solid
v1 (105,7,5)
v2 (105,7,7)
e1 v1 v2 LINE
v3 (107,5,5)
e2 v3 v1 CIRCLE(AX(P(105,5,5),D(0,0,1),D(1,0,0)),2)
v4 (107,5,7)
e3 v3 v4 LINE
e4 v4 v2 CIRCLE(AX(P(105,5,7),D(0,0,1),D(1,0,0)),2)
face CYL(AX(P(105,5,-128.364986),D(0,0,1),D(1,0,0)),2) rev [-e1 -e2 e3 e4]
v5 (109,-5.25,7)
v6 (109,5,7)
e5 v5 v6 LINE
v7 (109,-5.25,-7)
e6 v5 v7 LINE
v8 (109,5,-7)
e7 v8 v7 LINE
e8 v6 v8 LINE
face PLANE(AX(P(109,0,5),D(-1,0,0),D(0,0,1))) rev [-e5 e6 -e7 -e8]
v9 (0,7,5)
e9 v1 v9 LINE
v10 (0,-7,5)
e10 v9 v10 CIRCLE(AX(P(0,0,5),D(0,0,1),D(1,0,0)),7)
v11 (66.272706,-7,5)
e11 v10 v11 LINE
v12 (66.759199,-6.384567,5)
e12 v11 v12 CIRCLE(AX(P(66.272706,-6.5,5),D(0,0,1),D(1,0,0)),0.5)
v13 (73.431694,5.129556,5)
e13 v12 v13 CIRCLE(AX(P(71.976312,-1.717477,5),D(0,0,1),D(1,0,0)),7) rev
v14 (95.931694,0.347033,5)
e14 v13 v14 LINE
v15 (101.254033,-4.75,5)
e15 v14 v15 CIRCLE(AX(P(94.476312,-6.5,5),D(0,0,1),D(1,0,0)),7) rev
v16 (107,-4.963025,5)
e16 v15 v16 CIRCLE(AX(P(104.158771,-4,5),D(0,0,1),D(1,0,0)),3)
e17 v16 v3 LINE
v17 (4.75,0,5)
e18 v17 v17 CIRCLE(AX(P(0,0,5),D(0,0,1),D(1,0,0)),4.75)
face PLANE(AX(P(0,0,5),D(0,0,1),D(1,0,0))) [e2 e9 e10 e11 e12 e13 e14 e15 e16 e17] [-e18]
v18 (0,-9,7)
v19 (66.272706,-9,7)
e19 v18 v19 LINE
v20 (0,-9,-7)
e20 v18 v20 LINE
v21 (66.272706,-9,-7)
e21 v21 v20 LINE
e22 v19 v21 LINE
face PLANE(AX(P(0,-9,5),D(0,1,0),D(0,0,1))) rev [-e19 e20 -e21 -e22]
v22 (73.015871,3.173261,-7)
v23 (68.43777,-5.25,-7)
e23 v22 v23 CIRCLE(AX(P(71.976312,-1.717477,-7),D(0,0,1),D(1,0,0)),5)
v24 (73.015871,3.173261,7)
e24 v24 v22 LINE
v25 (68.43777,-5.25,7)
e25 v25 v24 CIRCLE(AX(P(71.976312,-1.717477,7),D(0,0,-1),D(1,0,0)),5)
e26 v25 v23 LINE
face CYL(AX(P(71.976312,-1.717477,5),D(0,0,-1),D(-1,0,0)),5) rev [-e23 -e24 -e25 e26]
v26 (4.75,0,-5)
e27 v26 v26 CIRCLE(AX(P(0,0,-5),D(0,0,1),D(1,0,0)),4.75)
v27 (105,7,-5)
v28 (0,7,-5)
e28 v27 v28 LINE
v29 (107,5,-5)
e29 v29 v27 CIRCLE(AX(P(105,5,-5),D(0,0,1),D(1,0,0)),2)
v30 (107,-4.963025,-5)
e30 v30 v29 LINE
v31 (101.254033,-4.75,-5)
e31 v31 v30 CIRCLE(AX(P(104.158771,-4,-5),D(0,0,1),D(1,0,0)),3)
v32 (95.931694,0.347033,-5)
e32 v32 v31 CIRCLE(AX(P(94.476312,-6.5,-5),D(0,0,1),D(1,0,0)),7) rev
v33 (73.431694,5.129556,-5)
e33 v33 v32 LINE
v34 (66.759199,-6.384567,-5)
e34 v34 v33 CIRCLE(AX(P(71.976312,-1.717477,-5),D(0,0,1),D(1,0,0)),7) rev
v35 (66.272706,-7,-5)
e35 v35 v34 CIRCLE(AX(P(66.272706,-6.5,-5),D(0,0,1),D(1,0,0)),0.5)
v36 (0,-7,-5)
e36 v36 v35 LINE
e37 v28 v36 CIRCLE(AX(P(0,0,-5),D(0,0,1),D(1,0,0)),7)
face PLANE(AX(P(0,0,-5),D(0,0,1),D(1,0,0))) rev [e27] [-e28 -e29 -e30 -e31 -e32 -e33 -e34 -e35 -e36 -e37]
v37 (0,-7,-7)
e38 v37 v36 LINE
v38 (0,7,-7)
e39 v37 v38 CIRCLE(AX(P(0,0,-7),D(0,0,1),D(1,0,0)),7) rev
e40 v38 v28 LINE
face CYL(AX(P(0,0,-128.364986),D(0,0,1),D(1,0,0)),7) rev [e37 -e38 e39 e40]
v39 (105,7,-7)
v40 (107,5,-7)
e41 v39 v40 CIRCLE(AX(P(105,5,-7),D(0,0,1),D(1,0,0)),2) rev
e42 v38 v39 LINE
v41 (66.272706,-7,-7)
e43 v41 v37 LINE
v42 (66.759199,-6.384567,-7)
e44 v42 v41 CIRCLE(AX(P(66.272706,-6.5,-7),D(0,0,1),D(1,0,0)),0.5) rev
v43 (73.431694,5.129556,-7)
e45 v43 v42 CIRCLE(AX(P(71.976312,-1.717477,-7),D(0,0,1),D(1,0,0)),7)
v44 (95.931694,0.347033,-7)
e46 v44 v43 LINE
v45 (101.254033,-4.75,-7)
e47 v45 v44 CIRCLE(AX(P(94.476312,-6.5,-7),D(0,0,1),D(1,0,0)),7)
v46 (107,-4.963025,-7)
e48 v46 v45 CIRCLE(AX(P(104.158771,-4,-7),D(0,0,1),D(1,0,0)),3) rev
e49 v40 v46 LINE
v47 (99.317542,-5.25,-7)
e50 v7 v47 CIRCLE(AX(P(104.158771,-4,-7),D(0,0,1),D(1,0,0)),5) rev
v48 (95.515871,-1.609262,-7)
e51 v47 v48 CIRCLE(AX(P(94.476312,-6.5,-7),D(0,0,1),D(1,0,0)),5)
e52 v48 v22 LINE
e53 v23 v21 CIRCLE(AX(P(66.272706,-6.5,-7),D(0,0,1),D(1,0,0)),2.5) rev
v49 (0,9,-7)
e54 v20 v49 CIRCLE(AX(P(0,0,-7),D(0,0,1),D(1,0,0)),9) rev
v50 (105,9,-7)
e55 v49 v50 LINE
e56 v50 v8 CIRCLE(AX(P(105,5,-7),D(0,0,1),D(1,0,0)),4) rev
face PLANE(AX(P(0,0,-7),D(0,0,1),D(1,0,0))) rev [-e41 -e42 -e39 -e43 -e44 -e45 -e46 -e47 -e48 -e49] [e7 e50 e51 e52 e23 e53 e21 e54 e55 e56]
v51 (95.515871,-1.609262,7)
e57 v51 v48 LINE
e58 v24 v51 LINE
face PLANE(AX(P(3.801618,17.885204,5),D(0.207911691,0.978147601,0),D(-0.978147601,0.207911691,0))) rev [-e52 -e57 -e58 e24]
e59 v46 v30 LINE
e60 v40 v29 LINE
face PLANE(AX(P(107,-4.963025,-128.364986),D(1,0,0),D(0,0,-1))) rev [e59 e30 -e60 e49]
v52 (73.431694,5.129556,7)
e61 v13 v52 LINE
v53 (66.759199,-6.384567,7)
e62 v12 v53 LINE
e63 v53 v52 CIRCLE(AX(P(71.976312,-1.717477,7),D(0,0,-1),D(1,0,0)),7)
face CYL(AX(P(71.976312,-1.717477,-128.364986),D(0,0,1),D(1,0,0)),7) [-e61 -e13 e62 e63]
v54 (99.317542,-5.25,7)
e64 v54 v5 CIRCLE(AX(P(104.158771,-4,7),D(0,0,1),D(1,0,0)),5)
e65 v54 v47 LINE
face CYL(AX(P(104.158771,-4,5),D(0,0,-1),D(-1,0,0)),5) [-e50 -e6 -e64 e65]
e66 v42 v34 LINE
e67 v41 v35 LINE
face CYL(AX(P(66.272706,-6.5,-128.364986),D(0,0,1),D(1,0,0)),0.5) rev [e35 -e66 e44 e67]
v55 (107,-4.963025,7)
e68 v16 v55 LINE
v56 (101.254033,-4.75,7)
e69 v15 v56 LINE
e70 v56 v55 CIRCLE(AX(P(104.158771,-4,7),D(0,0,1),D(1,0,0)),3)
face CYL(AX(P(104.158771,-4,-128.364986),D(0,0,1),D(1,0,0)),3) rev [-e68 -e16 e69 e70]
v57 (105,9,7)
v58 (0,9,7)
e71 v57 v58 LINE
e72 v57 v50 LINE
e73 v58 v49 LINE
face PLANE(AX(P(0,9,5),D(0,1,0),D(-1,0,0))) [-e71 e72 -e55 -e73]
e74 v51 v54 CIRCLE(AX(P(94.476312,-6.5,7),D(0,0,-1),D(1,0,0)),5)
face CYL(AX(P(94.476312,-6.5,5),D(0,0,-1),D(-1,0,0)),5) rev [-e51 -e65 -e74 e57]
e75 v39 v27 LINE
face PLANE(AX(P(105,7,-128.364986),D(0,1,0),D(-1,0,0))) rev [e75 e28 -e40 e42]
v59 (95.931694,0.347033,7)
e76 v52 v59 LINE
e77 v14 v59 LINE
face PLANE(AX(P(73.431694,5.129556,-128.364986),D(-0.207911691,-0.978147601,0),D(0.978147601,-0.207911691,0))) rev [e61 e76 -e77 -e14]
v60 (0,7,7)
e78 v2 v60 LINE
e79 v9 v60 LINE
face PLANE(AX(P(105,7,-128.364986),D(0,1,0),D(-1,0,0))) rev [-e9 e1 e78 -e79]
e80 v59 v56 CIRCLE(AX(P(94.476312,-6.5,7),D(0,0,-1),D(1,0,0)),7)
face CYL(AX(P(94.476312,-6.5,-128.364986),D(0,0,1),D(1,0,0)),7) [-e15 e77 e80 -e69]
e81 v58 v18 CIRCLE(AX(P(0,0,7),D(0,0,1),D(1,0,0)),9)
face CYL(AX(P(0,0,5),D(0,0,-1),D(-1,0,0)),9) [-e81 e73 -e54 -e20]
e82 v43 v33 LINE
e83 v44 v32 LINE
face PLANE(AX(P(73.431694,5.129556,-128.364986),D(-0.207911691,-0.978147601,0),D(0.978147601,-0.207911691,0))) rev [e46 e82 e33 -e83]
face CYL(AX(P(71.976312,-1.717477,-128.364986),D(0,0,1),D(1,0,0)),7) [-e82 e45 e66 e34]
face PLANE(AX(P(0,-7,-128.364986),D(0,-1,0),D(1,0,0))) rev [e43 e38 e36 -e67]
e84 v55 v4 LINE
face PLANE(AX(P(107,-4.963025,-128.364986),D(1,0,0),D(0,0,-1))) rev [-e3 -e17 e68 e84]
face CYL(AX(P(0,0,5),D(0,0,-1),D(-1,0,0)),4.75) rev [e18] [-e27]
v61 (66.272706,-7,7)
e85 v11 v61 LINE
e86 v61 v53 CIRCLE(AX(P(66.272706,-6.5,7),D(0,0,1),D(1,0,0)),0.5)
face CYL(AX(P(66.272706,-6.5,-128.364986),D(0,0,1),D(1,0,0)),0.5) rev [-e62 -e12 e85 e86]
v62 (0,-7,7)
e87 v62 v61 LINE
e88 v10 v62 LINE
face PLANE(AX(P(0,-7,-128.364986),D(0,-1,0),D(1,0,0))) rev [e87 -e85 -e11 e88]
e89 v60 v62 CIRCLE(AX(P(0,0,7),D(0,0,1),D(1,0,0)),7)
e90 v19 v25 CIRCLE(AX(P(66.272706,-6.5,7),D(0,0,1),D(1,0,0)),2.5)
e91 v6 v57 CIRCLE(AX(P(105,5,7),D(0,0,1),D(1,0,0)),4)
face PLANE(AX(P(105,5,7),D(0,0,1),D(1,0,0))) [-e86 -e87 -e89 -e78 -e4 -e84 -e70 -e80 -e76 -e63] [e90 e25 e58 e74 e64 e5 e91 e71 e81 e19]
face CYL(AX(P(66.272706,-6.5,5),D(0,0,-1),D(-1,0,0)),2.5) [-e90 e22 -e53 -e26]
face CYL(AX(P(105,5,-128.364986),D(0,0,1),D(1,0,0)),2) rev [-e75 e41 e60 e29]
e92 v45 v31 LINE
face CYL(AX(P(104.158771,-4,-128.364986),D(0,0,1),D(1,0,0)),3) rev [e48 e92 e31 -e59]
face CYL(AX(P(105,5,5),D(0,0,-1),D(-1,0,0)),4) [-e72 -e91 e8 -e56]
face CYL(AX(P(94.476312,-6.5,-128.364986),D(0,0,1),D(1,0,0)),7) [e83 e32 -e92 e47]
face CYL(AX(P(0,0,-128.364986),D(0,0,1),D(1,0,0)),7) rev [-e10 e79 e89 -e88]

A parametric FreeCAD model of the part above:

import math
import FreeCAD as App
import Part
import Sketcher

V = App.Vector
Q = App.Units.Quantity

doc = App.newDocument("Part")
body = doc.addObject("PartDesign::Body", "Body")

# Sketch on XY plane
sketch1 = body.newObject("Sketcher::SketchObject", "Sketch")
sketch1.AttachmentSupport = (doc.getObject("XY_Plane"), [""])
sketch1.MapMode = "FlatFace"
sketch1.addGeometry([
    Part.ArcOfCircle(Part.Circle(V(0, 0, 0), V(0, 0, 1), 9), math.radians(-90), math.radians(0)),  # 0
    Part.LineSegment(V(0, -9, 0), V(66.3, -9, 0)),  # 1
    Part.ArcOfCircle(Part.Circle(V(66.3, -6.5, 0), V(0, 0, 1), 2.5), math.radians(-90), math.radians(30)),  # 2
    Part.ArcOfCircle(Part.Circle(V(72, -1.7, 0), V(0, 0, 1), 5), math.radians(78), math.radians(225)),  # 3
    Part.LineSegment(V(73, 3.2, 0), V(95.5, -1.6, 0)),  # 4
    Part.ArcOfCircle(Part.Circle(V(94.5, -6.5, 0), V(0, 0, 1), 5), math.radians(14), math.radians(78)),  # 5
    Part.ArcOfCircle(Part.Circle(V(104.2, -4, 0), V(0, 0, 1), 5), math.radians(-166), math.radians(-14)),  # 6
    Part.LineSegment(V(109, -5.2, 0), V(109, 5, 0)),  # 7
    Part.ArcOfCircle(Part.Circle(V(105, 5, 0), V(0, 0, 1), 4), math.radians(0), math.radians(90)),  # 8
    Part.LineSegment(V(105, 9, 0), V(0, 9, 0)),  # 9
    Part.ArcOfCircle(Part.Circle(V(0, 0, 0), V(0, 0, 1), 9), math.radians(0), math.radians(90)),  # 10
    Part.ArcOfCircle(Part.Circle(V(0, 0, 0), V(0, 0, 1), 9), math.radians(180), math.radians(270)),  # 11
    Part.ArcOfCircle(Part.Circle(V(0, 0, 0), V(0, 0, 1), 9), math.radians(-90), math.radians(0)),  # 12
    Part.LineSegment(V(9, 0, 0), V(4.8, 0, 0)),  # 13
    Part.ArcOfCircle(Part.Circle(V(0, 0, 0), V(0, 0, 1), 4.8), math.radians(180), math.radians(360)),  # 14
    Part.LineSegment(V(-4.8, 0, 0), V(-9, 0, 0)),  # 15
    Part.ArcOfCircle(Part.Circle(V(0, 0, 0), V(0, 0, 1), 9), math.radians(90), math.radians(180)),  # 16
    Part.LineSegment(V(-9, 0, 0), V(-4.8, 0, 0)),  # 17
    Part.ArcOfCircle(Part.Circle(V(0, 0, 0), V(0, 0, 1), 4.8), math.radians(0), math.radians(180)),  # 18
    Part.LineSegment(V(4.8, 0, 0), V(9, 0, 0)),  # 19
    Part.ArcOfCircle(Part.Circle(V(0, 0, 0), V(0, 0, 1), 9), math.radians(0), math.radians(90)),  # 20
], False)
sketch1.addConstraint([
    Sketcher.Constraint("Tangent", 0, 1, 1, 1),
    Sketcher.Constraint("Tangent", 1, 2, 2, 1),
    Sketcher.Constraint("Coincident", 2, 2, 3, 2),
    Sketcher.Constraint("Tangent", 3, 1, 4, 1),
    Sketcher.Constraint("Tangent", 4, 2, 5, 2),
    Sketcher.Constraint("Tangent", 5, 1, 6, 1),
    Sketcher.Constraint("Coincident", 6, 2, 7, 1),
    Sketcher.Constraint("Tangent", 7, 2, 8, 1),
    Sketcher.Constraint("Tangent", 8, 2, 9, 1),
    Sketcher.Constraint("Tangent", 9, 2, 10, 2),
    Sketcher.Constraint("Tangent", 10, 1, 0, 2),
    Sketcher.Constraint("Tangent", 11, 2, 12, 1),
    Sketcher.Constraint("Coincident", 12, 2, 13, 1),
    Sketcher.Constraint("Coincident", 13, 2, 14, 2),
    Sketcher.Constraint("Coincident", 14, 1, 15, 1),
    Sketcher.Constraint("Coincident", 15, 2, 11, 1),
    Sketcher.Constraint("Coincident", 16, 2, 17, 1),
    Sketcher.Constraint("Coincident", 17, 2, 18, 2),
    Sketcher.Constraint("Coincident", 18, 1, 19, 1),
    Sketcher.Constraint("Coincident", 19, 2, 20, 1),
    Sketcher.Constraint("Tangent", 20, 2, 16, 1),
    Sketcher.Constraint("Horizontal", 1),
    Sketcher.Constraint("Vertical", 7),
    Sketcher.Constraint("Horizontal", 9),
    Sketcher.Constraint("Horizontal", 13),
    Sketcher.Constraint("Horizontal", 15),
    Sketcher.Constraint("Horizontal", 17),
    Sketcher.Constraint("Horizontal", 19),
    Sketcher.Constraint("Coincident", 0, 3, -1, 1),
    Sketcher.Constraint("Coincident", 11, 3, -1, 1),
    Sketcher.Constraint("Coincident", 14, 3, -1, 1),
    Sketcher.Constraint("Coincident", 16, 3, -1, 1),
    Sketcher.Constraint("Coincident", 18, 3, -1, 1),
    Sketcher.Constraint("Coincident", 11, 2, 0, 1),
    Sketcher.Constraint("Coincident", 12, 2, 10, 1),
    Sketcher.Constraint("Coincident", 16, 2, 15, 2),
    Sketcher.Constraint("Coincident", 18, 1, 13, 2),
    Sketcher.Constraint("Coincident", 20, 2, 9, 2),
    Sketcher.Constraint("Equal", 3, 5),
    Sketcher.Constraint("Equal", 5, 6),
    Sketcher.Constraint("Equal", 16, 20),
    Sketcher.Constraint("PointOnObject", 10, 1, -1),
    Sketcher.Constraint("PointOnObject", 14, 1, -1),
    Sketcher.Constraint("Horizontal", 2, 3, 5, 3),
    Sketcher.Constraint("Horizontal", 2, 2, 5, 1),
    Sketcher.Constraint("Horizontal", 5, 1, 6, 2),
    Sketcher.Constraint("Radius", 0, Q("9 mm")),
    Sketcher.Constraint("Radius", 3, Q("5 mm")),
    Sketcher.Constraint("Radius", 8, Q("4 mm")),
    Sketcher.Constraint("Radius", 2, Q("2.5 mm")),
    Sketcher.Constraint("DistanceX", 9, 2, 9, 1, Q("105 mm")),
    Sketcher.Constraint("Angle", 4, Q("-12 deg")),
    Sketcher.Constraint("Radius", 14, Q("4.75 mm")),
    Sketcher.Constraint("DistanceY", 6, 3, -1, 1, Q("4 mm")),
    Sketcher.Constraint("DistanceX", 3, 3, 5, 3, Q("22.5 mm")),
])
pad1 = body.newObject("PartDesign::Pad", "Pad")
pad1.Profile = sketch1
pad1.Length = 10
pad1.Midplane = True

# Sketch on XY plane
sketch2 = body.newObject("Sketcher::SketchObject", "Sketch001")
sketch2.AttachmentSupport = (doc.getObject("XY_Plane"), [""])
sketch2.MapMode = "FlatFace"
sketch2.AttachmentOffset = App.Placement(V(0, 0, -7), App.Rotation())
sketch2.addGeometry([
    Part.LineSegment(V(105, 9, 0), V(0, 9, 0)),  # 0
    Part.ArcOfCircle(Part.Circle(V(0, 0, 0), V(0, 0, 1), 9), math.radians(90), math.radians(270)),  # 1
    Part.LineSegment(V(0, -9, 0), V(66.27, -9, 0)),  # 2
    Part.ArcOfCircle(Part.Circle(V(66.27, -6.5, 0), V(0, 0, 1), 2.5), math.radians(-90), math.radians(30)),  # 3
    Part.ArcOfCircle(Part.Circle(V(71.98, -1.72, 0), V(0, 0, 1), 5), math.radians(78), math.radians(225)),  # 4
    Part.LineSegment(V(73.02, 3.17, 0), V(95.52, -1.61, 0)),  # 5
    Part.ArcOfCircle(Part.Circle(V(94.48, -6.5, 0), V(0, 0, 1), 5), math.radians(14), math.radians(78)),  # 6
    Part.ArcOfCircle(Part.Circle(V(104.16, -4, 0), V(0, 0, 1), 5), math.radians(-166), math.radians(-14)),  # 7
    Part.LineSegment(V(109, -5.25, 0), V(109, 5, 0)),  # 8
    Part.ArcOfCircle(Part.Circle(V(105, 5, 0), V(0, 0, 1), 4), math.radians(0), math.radians(90)),  # 9
    Part.LineSegment(V(0, 7, 0), V(105, 7, 0)),  # 10
    Part.ArcOfCircle(Part.Circle(V(105, 5, 0), V(0, 0, 1), 2), math.radians(0), math.radians(90)),  # 11
    Part.LineSegment(V(107, 5, 0), V(107, -4.96, 0)),  # 12
    Part.ArcOfCircle(Part.Circle(V(104.16, -4, 0), V(0, 0, 1), 3), math.radians(-166), math.radians(-19)),  # 13
    Part.ArcOfCircle(Part.Circle(V(94.48, -6.5, 0), V(0, 0, 1), 7), math.radians(14), math.radians(78)),  # 14
    Part.LineSegment(V(95.93, 0.35, 0), V(73.43, 5.13, 0)),  # 15
    Part.ArcOfCircle(Part.Circle(V(71.98, -1.72, 0), V(0, 0, 1), 7), math.radians(78), math.radians(222)),  # 16
    Part.ArcOfCircle(Part.Circle(V(66.27, -6.5, 0), V(0, 0, 1), 0.5), math.radians(-90), math.radians(13)),  # 17
    Part.LineSegment(V(66.27, -7, 0), V(0, -7, 0)),  # 18
    Part.ArcOfCircle(Part.Circle(V(0, 0, 0), V(0, 0, 1), 7), math.radians(90), math.radians(270)),  # 19
], False)
sketch2.addConstraint([
    Sketcher.Constraint("Tangent", 0, 2, 1, 1),
    Sketcher.Constraint("Tangent", 1, 2, 2, 1),
    Sketcher.Constraint("Tangent", 2, 2, 3, 1),
    Sketcher.Constraint("Coincident", 3, 2, 4, 2),
    Sketcher.Constraint("Tangent", 4, 1, 5, 1),
    Sketcher.Constraint("Tangent", 5, 2, 6, 2),
    Sketcher.Constraint("Tangent", 6, 1, 7, 1),
    Sketcher.Constraint("Coincident", 7, 2, 8, 1),
    Sketcher.Constraint("Tangent", 8, 2, 9, 1),
    Sketcher.Constraint("Tangent", 9, 2, 0, 1),
    Sketcher.Constraint("Tangent", 10, 2, 11, 2),
    Sketcher.Constraint("Tangent", 11, 1, 12, 1),
    Sketcher.Constraint("Coincident", 12, 2, 13, 2),
    Sketcher.Constraint("Tangent", 13, 1, 14, 1),
    Sketcher.Constraint("Tangent", 14, 2, 15, 1),
    Sketcher.Constraint("Tangent", 15, 2, 16, 1),
    Sketcher.Constraint("Coincident", 16, 2, 17, 2),
    Sketcher.Constraint("Tangent", 17, 1, 18, 1),
    Sketcher.Constraint("Tangent", 18, 2, 19, 2),
    Sketcher.Constraint("Tangent", 19, 1, 10, 1),
    Sketcher.Constraint("Horizontal", 0),
    Sketcher.Constraint("Horizontal", 2),
    Sketcher.Constraint("Vertical", 8),
    Sketcher.Constraint("Horizontal", 10),
    Sketcher.Constraint("Vertical", 12),
    Sketcher.Constraint("Horizontal", 18),
    Sketcher.Constraint("Coincident", 1, 3, -1, 1),
    Sketcher.Constraint("Coincident", 19, 3, -1, 1),
    Sketcher.Constraint("Coincident", 11, 3, 9, 3),
    Sketcher.Constraint("Coincident", 13, 3, 7, 3),
    Sketcher.Constraint("Coincident", 14, 3, 6, 3),
    Sketcher.Constraint("Coincident", 16, 3, 4, 3),
    Sketcher.Constraint("Coincident", 17, 3, 3, 3),
    Sketcher.Constraint("Equal", 4, 6),
    Sketcher.Constraint("Equal", 6, 7),
    Sketcher.Constraint("Equal", 14, 16),
    Sketcher.Constraint("Equal", 16, 19),
    Sketcher.Constraint("Horizontal", 3, 3, 6, 3),
    Sketcher.Constraint("Horizontal", 3, 2, 6, 1),
    Sketcher.Constraint("Horizontal", 6, 1, 7, 2),
    Sketcher.Constraint("Radius", 1, Q("9 mm")),
    Sketcher.Constraint("Radius", 4, Q("5 mm")),
    Sketcher.Constraint("Radius", 9, Q("4 mm")),
    Sketcher.Constraint("Radius", 11, Q("2 mm")),
    Sketcher.Constraint("Radius", 3, Q("2.5 mm")),
    Sketcher.Constraint("DistanceX", 0, 2, 0, 1, Q("105 mm")),
    Sketcher.Constraint("Angle", 5, Q("-12 deg")),
    Sketcher.Constraint("DistanceY", 7, 3, -1, 1, Q("4 mm")),
    Sketcher.Constraint("DistanceX", 4, 3, 6, 3, Q("22.5 mm")),
])
pad2 = body.newObject("PartDesign::Pad", "Pad001")
pad2.Profile = sketch2
pad2.Length = 14

doc.recompute()
